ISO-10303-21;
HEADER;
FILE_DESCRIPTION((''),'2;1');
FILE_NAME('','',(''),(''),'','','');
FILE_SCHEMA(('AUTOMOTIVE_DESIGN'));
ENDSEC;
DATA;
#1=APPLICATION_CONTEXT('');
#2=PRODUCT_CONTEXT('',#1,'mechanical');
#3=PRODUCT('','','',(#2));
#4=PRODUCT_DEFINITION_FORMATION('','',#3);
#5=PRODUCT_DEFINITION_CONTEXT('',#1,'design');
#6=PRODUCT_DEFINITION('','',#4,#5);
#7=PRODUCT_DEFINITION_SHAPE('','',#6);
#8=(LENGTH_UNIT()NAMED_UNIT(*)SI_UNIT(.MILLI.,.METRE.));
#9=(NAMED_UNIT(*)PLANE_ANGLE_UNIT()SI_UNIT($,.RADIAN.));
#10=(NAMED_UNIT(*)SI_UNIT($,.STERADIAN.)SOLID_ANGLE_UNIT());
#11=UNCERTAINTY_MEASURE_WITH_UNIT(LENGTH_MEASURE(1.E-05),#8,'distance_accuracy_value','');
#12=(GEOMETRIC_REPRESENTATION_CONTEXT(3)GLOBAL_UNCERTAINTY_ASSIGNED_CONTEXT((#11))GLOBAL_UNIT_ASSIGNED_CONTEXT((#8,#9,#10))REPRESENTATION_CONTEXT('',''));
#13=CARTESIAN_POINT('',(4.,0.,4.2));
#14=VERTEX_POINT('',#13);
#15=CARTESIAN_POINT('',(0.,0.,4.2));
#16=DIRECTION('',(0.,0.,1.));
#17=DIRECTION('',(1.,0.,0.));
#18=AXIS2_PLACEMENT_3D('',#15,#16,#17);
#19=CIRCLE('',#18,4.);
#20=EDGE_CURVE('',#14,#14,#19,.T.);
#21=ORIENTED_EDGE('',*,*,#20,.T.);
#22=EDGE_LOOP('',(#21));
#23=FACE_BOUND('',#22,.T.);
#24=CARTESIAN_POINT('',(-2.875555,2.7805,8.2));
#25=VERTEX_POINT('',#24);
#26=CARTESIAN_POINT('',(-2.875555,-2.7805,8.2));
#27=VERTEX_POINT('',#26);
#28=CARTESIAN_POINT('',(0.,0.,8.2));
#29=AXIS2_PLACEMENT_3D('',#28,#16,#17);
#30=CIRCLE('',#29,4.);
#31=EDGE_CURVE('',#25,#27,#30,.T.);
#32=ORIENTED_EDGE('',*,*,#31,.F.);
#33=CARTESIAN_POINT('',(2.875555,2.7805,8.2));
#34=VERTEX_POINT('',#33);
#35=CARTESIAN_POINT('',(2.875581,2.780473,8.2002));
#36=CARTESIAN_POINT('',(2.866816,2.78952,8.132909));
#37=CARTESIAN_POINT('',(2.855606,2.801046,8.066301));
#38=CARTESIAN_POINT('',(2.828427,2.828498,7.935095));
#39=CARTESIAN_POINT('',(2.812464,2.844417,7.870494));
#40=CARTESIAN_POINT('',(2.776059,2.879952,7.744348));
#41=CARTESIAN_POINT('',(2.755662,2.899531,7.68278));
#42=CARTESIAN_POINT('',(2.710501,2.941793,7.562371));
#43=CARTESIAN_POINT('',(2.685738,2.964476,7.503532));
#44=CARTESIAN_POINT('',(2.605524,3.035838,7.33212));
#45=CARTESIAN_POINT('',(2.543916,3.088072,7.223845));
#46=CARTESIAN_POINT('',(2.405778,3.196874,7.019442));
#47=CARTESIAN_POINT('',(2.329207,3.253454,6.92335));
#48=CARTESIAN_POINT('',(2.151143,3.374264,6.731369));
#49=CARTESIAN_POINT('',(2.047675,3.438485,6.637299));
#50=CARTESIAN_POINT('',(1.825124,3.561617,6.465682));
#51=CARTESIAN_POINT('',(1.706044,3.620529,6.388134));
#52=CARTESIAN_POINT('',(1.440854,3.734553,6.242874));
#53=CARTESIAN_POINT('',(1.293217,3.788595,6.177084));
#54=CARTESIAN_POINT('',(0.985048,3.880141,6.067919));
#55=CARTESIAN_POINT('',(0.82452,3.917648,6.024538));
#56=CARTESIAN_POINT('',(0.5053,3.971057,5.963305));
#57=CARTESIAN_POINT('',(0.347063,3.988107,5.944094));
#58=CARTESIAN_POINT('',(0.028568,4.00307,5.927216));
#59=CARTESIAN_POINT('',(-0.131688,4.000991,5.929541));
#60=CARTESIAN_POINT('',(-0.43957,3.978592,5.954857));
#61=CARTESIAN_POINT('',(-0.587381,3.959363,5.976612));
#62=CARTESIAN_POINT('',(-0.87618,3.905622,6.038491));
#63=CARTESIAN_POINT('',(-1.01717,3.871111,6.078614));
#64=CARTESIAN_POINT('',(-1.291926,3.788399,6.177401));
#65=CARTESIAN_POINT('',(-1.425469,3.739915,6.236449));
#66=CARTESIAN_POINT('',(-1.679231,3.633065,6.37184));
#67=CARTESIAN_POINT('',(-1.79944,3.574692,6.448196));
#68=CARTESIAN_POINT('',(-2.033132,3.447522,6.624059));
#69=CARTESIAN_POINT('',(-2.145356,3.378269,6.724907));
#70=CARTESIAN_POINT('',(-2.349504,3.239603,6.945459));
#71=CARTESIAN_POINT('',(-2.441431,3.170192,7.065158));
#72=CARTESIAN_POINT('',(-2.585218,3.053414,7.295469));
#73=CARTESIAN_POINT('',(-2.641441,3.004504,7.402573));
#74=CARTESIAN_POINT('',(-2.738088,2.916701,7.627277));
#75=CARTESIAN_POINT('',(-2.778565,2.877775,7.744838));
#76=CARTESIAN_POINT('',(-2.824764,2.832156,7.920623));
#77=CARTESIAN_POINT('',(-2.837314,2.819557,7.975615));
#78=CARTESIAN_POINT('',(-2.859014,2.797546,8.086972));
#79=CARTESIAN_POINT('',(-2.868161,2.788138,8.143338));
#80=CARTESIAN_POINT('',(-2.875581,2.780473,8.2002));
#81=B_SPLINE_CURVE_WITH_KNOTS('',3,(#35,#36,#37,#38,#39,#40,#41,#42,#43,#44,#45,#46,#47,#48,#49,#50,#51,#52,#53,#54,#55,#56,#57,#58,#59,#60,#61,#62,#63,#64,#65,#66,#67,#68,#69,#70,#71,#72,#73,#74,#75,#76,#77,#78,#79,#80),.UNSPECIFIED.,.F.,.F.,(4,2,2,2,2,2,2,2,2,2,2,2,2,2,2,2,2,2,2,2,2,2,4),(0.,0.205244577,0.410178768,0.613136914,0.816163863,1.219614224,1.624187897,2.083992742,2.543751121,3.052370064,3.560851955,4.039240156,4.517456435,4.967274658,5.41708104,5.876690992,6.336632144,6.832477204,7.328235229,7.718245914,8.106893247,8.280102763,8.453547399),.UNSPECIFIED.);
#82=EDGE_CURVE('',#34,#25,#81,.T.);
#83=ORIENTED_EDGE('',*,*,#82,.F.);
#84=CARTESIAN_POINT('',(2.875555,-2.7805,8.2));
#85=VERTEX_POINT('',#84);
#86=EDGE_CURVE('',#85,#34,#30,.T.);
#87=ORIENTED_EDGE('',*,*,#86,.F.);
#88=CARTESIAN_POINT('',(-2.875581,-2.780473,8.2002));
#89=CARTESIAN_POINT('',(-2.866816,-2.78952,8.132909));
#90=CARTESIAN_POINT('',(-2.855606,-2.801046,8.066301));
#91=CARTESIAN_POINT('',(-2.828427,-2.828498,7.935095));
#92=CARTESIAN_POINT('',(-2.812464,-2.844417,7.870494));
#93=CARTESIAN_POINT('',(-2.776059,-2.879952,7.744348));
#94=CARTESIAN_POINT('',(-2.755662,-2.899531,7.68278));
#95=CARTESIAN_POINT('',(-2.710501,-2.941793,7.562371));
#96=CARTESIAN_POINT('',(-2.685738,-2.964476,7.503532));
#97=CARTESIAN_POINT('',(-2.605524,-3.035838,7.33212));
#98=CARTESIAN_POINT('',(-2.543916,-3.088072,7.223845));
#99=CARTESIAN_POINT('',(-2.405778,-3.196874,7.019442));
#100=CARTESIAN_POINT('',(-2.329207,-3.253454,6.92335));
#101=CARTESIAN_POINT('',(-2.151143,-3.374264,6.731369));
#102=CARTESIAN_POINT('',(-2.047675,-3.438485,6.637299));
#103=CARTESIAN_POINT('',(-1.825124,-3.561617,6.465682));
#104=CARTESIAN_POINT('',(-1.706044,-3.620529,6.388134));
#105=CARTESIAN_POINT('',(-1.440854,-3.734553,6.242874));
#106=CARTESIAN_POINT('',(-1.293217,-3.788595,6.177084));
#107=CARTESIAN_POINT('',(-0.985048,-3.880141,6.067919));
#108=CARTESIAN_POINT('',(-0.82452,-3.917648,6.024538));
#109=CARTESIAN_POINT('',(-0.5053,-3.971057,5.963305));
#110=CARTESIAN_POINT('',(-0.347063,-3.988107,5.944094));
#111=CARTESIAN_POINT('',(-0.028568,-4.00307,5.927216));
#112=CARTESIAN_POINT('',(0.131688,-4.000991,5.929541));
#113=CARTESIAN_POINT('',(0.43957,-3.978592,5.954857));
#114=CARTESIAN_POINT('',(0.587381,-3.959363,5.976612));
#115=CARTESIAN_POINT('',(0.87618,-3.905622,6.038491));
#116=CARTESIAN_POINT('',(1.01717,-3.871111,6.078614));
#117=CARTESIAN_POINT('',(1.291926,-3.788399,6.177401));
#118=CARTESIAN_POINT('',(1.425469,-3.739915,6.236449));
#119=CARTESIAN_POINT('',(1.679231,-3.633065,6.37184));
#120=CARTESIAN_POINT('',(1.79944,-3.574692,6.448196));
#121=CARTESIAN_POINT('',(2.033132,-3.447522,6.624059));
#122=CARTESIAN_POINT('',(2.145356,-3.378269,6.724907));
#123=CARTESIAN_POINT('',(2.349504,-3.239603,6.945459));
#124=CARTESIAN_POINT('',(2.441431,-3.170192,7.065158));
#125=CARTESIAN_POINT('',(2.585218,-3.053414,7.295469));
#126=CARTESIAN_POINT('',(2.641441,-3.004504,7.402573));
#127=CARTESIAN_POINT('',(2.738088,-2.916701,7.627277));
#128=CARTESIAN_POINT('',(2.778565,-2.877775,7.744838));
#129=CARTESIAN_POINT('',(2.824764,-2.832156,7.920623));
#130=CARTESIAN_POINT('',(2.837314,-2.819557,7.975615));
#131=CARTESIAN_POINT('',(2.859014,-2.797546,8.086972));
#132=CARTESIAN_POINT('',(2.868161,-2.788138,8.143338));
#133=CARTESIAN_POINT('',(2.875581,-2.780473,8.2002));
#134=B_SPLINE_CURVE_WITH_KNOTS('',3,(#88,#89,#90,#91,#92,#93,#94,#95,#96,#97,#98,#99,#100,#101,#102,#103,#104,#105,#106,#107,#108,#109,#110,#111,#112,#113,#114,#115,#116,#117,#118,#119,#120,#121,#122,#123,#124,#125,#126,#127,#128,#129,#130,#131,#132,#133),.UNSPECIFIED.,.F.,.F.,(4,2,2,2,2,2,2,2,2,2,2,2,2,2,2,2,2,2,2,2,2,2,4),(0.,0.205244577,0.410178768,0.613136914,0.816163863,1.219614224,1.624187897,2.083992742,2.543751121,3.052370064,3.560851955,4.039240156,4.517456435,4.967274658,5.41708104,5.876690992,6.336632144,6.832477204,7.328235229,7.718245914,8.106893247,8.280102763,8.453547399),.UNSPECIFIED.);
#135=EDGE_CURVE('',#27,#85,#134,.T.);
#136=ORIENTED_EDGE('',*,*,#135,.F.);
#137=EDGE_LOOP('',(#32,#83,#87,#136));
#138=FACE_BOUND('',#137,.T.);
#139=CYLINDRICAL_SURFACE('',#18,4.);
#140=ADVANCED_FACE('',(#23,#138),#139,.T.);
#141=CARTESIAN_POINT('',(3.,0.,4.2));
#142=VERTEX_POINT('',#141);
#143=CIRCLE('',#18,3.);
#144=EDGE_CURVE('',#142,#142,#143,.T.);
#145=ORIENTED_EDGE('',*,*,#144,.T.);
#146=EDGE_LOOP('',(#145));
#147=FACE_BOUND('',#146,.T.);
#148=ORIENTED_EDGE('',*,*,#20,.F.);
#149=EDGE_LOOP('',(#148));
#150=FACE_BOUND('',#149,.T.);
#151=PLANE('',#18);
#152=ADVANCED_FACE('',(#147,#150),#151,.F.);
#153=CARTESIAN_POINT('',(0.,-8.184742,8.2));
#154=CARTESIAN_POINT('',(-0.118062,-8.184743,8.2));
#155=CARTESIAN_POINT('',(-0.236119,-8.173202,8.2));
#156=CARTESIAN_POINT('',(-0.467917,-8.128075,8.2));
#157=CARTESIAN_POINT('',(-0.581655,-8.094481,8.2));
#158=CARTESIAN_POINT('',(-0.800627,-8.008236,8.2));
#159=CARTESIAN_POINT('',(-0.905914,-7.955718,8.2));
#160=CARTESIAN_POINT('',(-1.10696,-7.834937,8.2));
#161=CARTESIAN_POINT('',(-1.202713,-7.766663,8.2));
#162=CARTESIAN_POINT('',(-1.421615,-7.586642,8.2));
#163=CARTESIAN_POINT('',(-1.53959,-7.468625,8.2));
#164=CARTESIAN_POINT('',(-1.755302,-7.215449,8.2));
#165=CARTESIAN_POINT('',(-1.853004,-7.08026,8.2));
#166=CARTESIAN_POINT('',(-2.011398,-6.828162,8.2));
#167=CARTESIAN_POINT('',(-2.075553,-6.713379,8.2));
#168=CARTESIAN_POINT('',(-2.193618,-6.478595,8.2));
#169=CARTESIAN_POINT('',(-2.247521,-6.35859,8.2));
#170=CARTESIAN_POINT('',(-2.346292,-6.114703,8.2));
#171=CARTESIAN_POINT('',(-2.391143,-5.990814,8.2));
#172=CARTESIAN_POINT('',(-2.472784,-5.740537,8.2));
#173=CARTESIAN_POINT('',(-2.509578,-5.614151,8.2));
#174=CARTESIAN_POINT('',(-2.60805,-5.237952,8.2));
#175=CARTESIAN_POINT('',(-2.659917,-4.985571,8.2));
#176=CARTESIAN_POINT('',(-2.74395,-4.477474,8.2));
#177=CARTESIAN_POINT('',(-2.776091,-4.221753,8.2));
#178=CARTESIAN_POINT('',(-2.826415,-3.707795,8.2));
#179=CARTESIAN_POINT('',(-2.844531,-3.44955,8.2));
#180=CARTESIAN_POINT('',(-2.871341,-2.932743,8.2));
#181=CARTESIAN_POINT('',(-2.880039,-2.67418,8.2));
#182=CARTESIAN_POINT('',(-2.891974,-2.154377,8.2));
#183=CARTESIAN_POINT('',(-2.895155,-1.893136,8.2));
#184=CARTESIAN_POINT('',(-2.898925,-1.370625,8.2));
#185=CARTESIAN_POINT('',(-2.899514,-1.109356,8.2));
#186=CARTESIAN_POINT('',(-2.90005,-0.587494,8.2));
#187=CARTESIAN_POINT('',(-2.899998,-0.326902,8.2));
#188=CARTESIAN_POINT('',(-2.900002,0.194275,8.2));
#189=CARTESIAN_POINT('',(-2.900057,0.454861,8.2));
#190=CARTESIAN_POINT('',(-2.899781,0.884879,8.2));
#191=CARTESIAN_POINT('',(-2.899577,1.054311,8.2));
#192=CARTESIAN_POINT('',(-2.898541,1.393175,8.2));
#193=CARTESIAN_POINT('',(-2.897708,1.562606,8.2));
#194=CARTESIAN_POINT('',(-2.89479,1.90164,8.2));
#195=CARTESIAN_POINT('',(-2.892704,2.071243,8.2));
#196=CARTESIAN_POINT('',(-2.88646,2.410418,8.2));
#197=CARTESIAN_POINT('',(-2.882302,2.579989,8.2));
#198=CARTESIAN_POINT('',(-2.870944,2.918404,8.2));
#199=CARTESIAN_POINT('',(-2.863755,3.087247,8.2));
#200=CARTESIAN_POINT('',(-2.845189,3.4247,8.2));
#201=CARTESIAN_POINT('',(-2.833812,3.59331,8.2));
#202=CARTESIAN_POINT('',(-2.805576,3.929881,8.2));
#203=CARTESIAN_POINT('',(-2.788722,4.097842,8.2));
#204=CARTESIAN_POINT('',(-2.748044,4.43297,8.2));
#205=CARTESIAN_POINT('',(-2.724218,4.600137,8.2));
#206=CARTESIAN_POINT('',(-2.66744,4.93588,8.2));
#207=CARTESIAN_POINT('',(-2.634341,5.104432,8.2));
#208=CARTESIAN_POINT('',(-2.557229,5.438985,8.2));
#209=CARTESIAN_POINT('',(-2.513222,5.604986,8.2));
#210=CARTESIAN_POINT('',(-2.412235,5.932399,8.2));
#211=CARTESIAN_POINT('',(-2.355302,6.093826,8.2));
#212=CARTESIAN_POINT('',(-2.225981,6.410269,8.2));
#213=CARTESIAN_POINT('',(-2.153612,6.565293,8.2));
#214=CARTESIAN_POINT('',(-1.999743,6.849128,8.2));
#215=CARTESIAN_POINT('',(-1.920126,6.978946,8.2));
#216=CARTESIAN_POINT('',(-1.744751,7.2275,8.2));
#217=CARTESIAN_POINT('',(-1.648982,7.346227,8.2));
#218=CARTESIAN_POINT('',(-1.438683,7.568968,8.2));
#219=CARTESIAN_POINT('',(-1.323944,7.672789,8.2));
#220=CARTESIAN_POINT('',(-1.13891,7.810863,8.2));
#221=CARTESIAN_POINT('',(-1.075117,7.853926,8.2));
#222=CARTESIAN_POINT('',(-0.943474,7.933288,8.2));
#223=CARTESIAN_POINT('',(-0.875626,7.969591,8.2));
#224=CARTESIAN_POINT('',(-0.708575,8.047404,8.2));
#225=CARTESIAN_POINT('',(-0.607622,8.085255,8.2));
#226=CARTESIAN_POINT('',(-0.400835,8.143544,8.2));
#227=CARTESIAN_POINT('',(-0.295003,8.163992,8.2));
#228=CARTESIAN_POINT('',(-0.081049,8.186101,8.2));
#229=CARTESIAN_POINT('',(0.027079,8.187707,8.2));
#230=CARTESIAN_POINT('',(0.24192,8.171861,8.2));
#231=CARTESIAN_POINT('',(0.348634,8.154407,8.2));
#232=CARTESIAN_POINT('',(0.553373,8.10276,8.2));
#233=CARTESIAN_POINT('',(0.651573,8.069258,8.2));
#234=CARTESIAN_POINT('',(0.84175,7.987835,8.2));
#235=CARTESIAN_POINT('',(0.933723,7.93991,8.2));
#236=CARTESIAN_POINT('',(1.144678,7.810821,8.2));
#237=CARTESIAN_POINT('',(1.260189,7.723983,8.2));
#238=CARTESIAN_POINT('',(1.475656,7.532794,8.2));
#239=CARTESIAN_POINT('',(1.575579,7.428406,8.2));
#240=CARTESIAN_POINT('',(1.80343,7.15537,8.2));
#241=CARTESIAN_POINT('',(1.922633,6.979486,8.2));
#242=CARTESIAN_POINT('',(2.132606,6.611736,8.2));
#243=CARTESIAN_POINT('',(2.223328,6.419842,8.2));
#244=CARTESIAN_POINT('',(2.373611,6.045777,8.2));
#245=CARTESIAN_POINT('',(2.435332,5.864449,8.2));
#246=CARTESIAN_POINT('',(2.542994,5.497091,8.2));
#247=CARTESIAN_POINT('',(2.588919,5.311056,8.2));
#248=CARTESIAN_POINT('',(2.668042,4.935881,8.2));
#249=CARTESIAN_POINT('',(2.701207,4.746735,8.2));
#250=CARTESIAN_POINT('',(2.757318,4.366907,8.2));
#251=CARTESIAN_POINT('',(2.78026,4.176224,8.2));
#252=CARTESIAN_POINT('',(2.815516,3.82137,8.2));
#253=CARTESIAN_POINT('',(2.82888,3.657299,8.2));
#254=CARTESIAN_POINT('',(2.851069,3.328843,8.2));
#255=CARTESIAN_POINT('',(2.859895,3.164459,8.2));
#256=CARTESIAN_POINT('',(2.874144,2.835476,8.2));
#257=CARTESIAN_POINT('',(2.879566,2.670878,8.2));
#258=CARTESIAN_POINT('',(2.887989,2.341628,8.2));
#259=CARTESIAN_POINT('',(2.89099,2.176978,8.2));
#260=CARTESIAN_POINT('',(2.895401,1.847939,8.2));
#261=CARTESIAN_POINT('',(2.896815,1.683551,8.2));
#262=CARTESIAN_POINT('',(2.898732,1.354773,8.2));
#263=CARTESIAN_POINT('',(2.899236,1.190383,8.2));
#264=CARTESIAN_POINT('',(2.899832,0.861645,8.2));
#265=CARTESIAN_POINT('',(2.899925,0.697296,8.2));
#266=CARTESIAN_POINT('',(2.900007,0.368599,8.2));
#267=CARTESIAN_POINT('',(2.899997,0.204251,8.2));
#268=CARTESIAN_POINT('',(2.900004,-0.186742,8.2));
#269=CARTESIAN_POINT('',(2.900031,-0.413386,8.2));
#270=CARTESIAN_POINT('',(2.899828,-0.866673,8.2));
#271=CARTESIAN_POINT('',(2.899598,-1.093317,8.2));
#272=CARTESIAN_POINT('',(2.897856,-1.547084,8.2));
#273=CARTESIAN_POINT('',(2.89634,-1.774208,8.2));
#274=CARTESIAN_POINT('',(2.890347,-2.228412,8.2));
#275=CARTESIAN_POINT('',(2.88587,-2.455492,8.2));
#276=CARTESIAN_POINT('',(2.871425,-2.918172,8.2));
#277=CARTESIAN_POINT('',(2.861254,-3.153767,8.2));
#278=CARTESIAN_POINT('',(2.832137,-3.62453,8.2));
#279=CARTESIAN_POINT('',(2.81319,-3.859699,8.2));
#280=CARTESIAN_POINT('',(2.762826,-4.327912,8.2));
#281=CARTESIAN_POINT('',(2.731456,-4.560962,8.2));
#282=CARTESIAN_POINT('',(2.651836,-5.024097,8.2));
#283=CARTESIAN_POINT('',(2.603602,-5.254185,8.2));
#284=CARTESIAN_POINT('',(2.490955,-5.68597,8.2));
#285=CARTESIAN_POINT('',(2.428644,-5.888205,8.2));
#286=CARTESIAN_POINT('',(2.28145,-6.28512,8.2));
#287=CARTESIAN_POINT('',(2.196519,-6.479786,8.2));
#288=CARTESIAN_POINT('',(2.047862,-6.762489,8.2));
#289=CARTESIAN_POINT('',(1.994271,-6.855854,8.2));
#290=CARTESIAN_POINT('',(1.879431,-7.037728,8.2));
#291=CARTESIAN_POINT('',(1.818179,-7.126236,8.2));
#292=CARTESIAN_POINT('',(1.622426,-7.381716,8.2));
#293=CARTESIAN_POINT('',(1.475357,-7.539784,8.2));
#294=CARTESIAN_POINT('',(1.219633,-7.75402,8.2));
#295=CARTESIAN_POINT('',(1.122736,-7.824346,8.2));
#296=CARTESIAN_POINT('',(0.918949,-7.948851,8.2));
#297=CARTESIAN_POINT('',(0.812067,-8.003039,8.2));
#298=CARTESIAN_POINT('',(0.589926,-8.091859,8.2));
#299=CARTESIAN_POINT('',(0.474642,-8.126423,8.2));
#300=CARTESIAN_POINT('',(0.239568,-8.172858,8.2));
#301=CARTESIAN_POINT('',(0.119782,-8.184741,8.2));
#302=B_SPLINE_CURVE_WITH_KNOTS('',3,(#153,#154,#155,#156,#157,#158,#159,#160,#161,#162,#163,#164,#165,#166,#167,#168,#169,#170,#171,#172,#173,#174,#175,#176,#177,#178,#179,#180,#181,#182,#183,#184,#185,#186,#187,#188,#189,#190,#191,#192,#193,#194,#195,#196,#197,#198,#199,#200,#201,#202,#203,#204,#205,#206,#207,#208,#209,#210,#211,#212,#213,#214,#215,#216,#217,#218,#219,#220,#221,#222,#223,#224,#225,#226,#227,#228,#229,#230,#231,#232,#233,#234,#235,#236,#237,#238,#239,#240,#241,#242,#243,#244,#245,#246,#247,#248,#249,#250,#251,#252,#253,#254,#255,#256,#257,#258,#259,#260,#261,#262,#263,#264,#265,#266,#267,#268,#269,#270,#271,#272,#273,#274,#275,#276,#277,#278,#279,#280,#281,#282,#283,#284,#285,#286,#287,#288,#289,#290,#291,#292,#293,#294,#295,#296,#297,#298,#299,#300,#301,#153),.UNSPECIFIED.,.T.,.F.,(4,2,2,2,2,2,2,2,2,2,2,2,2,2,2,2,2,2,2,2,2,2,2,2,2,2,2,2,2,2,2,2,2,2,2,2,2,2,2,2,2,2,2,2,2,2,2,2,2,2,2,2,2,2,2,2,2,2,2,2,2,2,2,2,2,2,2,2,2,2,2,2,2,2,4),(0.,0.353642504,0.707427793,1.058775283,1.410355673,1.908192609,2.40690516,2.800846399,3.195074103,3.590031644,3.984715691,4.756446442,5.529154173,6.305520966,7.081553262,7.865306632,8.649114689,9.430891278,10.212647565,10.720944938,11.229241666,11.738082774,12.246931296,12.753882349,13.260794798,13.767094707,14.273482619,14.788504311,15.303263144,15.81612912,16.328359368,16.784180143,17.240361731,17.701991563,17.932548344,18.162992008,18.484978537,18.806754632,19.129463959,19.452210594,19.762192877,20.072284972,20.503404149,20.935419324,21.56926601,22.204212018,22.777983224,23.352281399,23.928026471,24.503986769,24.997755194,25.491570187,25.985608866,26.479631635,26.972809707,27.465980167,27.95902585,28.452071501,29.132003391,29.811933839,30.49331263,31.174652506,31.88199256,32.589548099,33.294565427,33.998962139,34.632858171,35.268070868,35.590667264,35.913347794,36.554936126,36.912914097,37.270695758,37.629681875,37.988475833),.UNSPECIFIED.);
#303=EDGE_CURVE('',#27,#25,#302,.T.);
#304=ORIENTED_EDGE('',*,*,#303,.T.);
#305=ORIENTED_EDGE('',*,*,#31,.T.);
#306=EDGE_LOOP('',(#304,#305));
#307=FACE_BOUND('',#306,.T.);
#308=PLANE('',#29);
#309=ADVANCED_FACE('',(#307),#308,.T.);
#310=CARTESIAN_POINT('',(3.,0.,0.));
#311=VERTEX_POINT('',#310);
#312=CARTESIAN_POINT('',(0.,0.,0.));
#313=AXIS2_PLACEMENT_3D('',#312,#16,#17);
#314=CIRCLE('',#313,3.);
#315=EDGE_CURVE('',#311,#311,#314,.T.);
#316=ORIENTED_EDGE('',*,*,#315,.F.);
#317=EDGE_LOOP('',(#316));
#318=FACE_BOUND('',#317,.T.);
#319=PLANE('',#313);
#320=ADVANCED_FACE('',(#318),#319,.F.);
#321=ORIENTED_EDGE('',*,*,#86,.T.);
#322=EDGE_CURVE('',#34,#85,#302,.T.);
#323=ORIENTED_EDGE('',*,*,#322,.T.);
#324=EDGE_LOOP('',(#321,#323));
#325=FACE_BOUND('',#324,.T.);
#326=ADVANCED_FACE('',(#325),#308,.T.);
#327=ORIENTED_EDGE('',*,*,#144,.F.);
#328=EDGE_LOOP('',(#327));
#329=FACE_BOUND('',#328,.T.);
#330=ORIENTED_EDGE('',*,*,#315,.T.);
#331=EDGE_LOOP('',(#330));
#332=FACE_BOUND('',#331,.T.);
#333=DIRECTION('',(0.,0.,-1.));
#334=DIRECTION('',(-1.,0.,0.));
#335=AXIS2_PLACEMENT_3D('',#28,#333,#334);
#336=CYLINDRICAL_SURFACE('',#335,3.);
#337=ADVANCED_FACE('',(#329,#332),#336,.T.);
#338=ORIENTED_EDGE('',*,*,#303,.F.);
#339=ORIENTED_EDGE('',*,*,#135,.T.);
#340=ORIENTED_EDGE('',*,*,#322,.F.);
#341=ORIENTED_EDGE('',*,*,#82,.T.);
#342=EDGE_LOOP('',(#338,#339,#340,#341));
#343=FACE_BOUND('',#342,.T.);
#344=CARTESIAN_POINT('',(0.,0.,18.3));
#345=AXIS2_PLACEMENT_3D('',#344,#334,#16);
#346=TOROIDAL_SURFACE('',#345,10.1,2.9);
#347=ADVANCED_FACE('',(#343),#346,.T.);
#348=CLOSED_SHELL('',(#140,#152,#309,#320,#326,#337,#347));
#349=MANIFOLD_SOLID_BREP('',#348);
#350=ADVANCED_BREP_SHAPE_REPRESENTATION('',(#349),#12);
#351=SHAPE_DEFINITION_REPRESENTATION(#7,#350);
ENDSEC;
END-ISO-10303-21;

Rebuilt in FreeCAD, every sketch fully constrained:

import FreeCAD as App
import Part
import Sketcher

doc = App.newDocument("Part")
body = doc.addObject("PartDesign::Body", "Body")

# Sketch on XY plane
sketch1 = doc.addObject("Sketcher::SketchObject", "Sketch")
body.addObject(sketch1)
sketch1.AttachmentSupport = (doc.XY_Plane, [""])
sketch1.MapMode = "FlatFace"
sketch1.addGeometry(Part.Circle(App.Vector(0, 0, 0), App.Vector(0, 0, 1), 3), False)
sketch1.addConstraint(Sketcher.Constraint("Coincident", 0, 3, -1, 1))
sketch1.addConstraint(Sketcher.Constraint("Diameter", 0, 6.0))
pad1 = doc.addObject("PartDesign::Pad", "Pad")
body.addObject(pad1)
pad1.Profile = sketch1
pad1.Length = 8.2

# Sketch on XZ plane
sketch2 = doc.addObject("Sketcher::SketchObject", "Sketch001")
body.addObject(sketch2)
sketch2.AttachmentSupport = (doc.XZ_Plane, [""])
sketch2.MapMode = "FlatFace"
sketch2.addGeometry(Part.Circle(App.Vector(0, 8.2, 0), App.Vector(0, 0, 1), 2.9), False)
sketch2.addConstraint(Sketcher.Constraint("PointOnObject", 0, 3, -2))
sketch2.addConstraint(Sketcher.Constraint("Diameter", 0, 5.8))
sketch2.addConstraint(Sketcher.Constraint("DistanceY", -1, 1, 0, 3, 8.2))

# Sketch on YZ plane
sketch3 = doc.addObject("Sketcher::SketchObject", "Sketch002")
body.addObject(sketch3)
sketch3.AttachmentSupport = (doc.YZ_Plane, [""])
sketch3.MapMode = "FlatFace"
sketch3.addGeometry(Part.Circle(App.Vector(0, 18, 0), App.Vector(0, 0, 1), 10), False)
sketch3.addConstraint(Sketcher.Constraint("PointOnObject", 0, 3, -2))
sketch3.addConstraint(Sketcher.Constraint("Diameter", 0, 20.2))
sketch3.addConstraint(Sketcher.Constraint("DistanceY", -1, 1, 0, 3, 18.3))
doc.recompute()

additivepipe = doc.addObject("PartDesign::AdditivePipe", "AdditivePipe")
body.addObject(additivepipe)
additivepipe.Profile = sketch2
additivepipe.Spine = (sketch3, ["Edge1"])

# Sketch on XY plane
sketch4 = doc.addObject("Sketcher::SketchObject", "Sketch003")
body.addObject(sketch4)
sketch4.AttachmentSupport = (doc.XY_Plane, [""])
sketch4.MapMode = "FlatFace"
sketch4.AttachmentOffset = App.Placement(App.Vector(0, 0, 8.2), App.Rotation())
sketch4.addGeometry(Part.Circle(App.Vector(0, 0, 0), App.Vector(0, 0, 1), 4), False)
sketch4.addConstraint(Sketcher.Constraint("Coincident", 0, 3, -1, 1))
sketch4.addConstraint(Sketcher.Constraint("Diameter", 0, 8.0))
pad2 = doc.addObject("PartDesign::Pad", "Pad001")
body.addObject(pad2)
pad2.Profile = sketch4
pad2.Length = 4
pad2.Reversed = True

doc.recompute()
